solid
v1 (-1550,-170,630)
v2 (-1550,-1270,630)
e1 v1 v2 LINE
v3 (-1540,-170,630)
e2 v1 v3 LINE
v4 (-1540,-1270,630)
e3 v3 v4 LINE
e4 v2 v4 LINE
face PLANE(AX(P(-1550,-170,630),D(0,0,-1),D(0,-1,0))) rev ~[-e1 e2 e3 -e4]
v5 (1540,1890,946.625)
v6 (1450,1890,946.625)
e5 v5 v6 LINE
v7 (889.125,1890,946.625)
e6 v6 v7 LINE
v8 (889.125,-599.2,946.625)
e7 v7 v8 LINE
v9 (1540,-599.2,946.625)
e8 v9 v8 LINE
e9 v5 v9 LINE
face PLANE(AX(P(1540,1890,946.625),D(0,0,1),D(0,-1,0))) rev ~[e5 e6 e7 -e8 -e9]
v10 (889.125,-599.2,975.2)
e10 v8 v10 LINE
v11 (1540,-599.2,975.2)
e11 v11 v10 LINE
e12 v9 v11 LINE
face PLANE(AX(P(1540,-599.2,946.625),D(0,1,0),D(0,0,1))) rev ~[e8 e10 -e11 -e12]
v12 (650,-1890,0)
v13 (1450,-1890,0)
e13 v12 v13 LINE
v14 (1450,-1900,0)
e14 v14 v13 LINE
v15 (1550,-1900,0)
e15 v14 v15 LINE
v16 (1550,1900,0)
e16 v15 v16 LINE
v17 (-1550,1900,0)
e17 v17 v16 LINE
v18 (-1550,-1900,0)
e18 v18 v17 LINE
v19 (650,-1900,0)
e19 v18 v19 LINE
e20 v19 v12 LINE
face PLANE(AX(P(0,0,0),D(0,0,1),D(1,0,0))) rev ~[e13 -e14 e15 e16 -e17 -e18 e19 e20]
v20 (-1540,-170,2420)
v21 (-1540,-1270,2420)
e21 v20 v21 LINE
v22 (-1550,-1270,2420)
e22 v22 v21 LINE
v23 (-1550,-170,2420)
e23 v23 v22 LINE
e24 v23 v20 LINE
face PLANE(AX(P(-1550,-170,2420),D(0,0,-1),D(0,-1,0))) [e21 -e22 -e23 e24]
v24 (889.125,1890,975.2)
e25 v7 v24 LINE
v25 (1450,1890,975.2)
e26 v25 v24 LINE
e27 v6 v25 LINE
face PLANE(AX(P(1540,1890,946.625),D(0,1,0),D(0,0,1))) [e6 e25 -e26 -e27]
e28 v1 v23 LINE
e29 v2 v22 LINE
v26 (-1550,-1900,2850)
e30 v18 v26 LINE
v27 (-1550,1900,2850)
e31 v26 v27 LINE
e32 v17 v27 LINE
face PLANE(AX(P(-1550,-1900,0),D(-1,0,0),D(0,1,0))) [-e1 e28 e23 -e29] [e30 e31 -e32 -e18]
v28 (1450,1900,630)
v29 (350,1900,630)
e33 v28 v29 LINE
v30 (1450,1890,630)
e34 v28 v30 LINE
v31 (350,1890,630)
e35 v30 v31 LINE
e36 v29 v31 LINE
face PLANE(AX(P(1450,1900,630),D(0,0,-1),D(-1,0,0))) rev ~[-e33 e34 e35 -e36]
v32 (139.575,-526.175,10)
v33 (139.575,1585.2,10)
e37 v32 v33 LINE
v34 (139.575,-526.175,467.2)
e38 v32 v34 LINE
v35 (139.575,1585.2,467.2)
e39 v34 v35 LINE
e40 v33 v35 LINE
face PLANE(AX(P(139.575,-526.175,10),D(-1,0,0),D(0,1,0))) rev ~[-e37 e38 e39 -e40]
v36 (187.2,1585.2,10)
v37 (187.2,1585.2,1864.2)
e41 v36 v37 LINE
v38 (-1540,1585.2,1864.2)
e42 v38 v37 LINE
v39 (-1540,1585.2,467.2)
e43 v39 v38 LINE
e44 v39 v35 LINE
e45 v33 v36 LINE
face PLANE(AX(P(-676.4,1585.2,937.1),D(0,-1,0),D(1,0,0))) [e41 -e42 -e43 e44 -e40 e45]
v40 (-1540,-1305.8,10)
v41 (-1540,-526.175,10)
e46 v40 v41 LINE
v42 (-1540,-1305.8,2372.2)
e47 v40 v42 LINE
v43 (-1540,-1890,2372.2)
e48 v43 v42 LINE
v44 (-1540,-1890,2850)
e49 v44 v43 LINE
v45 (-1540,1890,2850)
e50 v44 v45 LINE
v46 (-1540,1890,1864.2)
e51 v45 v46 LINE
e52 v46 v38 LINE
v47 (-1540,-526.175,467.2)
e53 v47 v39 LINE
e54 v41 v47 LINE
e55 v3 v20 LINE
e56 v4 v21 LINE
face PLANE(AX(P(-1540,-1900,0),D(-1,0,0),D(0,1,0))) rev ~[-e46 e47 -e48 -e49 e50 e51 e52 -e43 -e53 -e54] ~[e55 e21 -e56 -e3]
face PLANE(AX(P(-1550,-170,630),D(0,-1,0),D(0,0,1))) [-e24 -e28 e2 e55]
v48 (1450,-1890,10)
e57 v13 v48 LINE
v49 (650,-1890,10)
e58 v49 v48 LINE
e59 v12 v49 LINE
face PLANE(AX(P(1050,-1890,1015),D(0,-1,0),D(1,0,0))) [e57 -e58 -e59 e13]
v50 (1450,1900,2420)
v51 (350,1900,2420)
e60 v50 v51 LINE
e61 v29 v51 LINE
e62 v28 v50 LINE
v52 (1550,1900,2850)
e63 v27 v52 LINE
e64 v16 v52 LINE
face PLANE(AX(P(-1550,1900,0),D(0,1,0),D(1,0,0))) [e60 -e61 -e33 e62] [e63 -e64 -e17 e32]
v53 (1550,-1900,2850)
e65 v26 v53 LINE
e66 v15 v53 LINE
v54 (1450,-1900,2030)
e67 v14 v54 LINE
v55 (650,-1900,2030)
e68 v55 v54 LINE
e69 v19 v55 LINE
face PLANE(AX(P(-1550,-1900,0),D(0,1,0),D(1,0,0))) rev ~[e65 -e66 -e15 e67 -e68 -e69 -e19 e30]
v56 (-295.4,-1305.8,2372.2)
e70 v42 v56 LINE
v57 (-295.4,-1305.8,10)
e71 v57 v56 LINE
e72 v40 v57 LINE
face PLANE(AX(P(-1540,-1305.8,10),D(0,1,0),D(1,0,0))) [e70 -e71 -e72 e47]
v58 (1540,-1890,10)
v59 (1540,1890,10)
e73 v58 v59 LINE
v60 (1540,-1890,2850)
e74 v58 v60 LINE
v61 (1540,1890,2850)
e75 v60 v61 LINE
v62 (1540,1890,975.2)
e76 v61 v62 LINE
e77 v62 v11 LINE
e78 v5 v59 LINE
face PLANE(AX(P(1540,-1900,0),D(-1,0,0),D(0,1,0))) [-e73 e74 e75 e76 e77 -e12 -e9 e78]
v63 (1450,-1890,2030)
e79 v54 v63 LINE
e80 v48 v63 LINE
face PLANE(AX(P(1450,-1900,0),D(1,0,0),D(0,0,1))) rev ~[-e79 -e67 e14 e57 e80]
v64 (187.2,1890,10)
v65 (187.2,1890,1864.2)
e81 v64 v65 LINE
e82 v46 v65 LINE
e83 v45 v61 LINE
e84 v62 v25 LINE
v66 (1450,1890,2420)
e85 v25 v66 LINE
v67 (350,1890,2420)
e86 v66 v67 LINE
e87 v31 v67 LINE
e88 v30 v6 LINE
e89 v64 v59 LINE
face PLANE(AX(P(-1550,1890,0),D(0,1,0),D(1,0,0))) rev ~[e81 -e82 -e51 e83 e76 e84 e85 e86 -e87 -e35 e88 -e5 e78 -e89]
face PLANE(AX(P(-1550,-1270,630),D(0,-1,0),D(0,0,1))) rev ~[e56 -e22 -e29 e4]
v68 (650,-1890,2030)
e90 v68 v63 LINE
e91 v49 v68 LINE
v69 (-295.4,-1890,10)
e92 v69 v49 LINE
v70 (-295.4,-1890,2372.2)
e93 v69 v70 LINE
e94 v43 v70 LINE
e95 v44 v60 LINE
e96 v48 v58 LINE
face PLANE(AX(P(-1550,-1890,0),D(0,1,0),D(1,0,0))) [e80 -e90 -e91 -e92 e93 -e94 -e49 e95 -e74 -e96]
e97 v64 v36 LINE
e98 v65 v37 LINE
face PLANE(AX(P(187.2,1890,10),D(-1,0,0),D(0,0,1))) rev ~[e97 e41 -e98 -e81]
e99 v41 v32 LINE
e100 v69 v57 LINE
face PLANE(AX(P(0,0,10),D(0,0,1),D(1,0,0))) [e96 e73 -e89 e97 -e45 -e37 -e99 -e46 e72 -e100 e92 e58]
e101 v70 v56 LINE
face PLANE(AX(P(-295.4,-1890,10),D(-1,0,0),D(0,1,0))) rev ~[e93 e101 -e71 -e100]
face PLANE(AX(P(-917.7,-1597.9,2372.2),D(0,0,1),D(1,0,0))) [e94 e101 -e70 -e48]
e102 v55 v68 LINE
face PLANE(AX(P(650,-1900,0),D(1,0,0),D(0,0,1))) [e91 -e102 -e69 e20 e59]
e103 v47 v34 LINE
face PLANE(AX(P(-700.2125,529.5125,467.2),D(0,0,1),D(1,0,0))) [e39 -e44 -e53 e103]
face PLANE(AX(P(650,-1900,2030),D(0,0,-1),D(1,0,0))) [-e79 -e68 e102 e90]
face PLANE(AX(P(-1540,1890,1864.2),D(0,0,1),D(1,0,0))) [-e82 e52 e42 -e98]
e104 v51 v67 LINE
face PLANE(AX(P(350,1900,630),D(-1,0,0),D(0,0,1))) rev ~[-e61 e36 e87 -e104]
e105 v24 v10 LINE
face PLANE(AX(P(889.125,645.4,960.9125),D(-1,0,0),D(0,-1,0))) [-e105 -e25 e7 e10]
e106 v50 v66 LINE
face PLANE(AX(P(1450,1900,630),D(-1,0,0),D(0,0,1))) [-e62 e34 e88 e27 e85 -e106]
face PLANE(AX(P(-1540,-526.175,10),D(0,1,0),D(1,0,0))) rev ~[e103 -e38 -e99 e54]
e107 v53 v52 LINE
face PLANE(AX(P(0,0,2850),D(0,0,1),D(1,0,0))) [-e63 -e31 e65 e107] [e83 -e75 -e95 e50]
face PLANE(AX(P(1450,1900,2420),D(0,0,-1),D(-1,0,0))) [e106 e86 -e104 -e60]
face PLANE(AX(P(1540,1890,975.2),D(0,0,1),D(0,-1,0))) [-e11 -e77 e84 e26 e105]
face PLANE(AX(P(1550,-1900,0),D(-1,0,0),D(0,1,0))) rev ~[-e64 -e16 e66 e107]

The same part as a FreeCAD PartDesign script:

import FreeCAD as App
import Part
import Sketcher
Q = App.Units.Quantity


def faces_at(feature, points):
    """Names of the faces that lie closest to the given points."""
    faces = feature.Shape.Faces
    near = lambda p: min(range(len(faces)), key=lambda i: faces[i].distToShape(Part.Vertex(*p))[0])
    return sorted({f"Face{near(p) + 1}" for p in points})

doc = App.newDocument("Part")
body = doc.addObject("PartDesign::Body", "Body")

sketch1 = body.newObject("Sketcher::SketchObject", "Sketch")
sketch1.AttachmentSupport = (doc.getObject("XY_Plane"), [""])
sketch1.MapMode = "FlatFace"
sketch1.addGeometry([
    Part.LineSegment(App.Vector(-1550, 1900, 0), App.Vector(-1550, -1900, 0)),
    Part.LineSegment(App.Vector(-1550, -1900, 0), App.Vector(1550, -1900, 0)),
    Part.LineSegment(App.Vector(1550, -1900, 0), App.Vector(1550, 1900, 0)),
    Part.LineSegment(App.Vector(1550, 1900, 0), App.Vector(-1550, 1900, 0)),
], False)
sketch1.addConstraint([
    Sketcher.Constraint("Coincident", 0, 2, 1, 1),
    Sketcher.Constraint("Coincident", 1, 2, 2, 1),
    Sketcher.Constraint("Coincident", 2, 2, 3, 1),
    Sketcher.Constraint("Coincident", 3, 2, 0, 1),
    Sketcher.Constraint("Vertical", 0),
    Sketcher.Constraint("Horizontal", 1),
    Sketcher.Constraint("Vertical", 2),
    Sketcher.Constraint("Horizontal", 3),
    Sketcher.Constraint("Symmetric", 0, 2, 2, 2, -1, 1),
    Sketcher.Constraint("DistanceX", 1, 1, 1, 2, 3100.0),
    Sketcher.Constraint("DistanceY", 0, 2, 0, 1, 3800.0),
])
pad1 = body.newObject("PartDesign::Pad", "Pad")
pad1.Profile = sketch1
pad1.Length = 2850
doc.recompute()

thickness = body.newObject("PartDesign::Thickness", "Thickness")
thickness.Base = (pad1, faces_at(pad1, [(0, 0, 2850)]))
thickness.Value = 10
thickness.Reversed = True
thickness.Join = "Arc"

sketch2 = body.newObject("Sketcher::SketchObject", "Sketch001")
sketch2.AttachmentSupport = (doc.getObject("XZ_Plane"), [""])
sketch2.MapMode = "FlatFace"
sketch2.AttachmentOffset = App.Placement(App.Vector(0, 0, 1900), App.Rotation())
sketch2.addGeometry([
    Part.LineSegment(App.Vector(650, 2030, 0), App.Vector(650, 0, 0)),
    Part.LineSegment(App.Vector(650, 0, 0), App.Vector(1450, 0, 0)),
    Part.LineSegment(App.Vector(1450, 0, 0), App.Vector(1450, 2030, 0)),
    Part.LineSegment(App.Vector(1450, 2030, 0), App.Vector(650, 2030, 0)),
], False)
sketch2.addConstraint([
    Sketcher.Constraint("Coincident", 0, 2, 1, 1),
    Sketcher.Constraint("Coincident", 1, 2, 2, 1),
    Sketcher.Constraint("Coincident", 2, 2, 3, 1),
    Sketcher.Constraint("Coincident", 3, 2, 0, 1),
    Sketcher.Constraint("Vertical", 0),
    Sketcher.Constraint("Horizontal", 1),
    Sketcher.Constraint("Vertical", 2),
    Sketcher.Constraint("Horizontal", 3),
    Sketcher.Constraint("PointOnObject", 0, 2, -1),
    Sketcher.Constraint("DistanceX", 1, 1, 1, 2, 800.0),
    Sketcher.Constraint("DistanceY", 0, 2, 0, 1, 2030.0),
    Sketcher.Constraint("DistanceX", -1, 1, 0, 2, 650.0),
])
pocket1 = body.newObject("PartDesign::Pocket", "Pocket")
pocket1.Profile = sketch2
pocket1.Length = 10

sketch3 = body.newObject("Sketcher::SketchObject", "Sketch002")
sketch3.AttachmentSupport = (doc.getObject("YZ_Plane"), [""])
sketch3.MapMode = "FlatFace"
sketch3.AttachmentOffset = App.Placement(App.Vector(0, 0, -1550), App.Rotation())
sketch3.addGeometry([
    Part.LineSegment(App.Vector(-170, 2420, 0), App.Vector(-170, 630, 0)),
    Part.LineSegment(App.Vector(-170, 630, 0), App.Vector(-1270, 630, 0)),
    Part.LineSegment(App.Vector(-1270, 630, 0), App.Vector(-1270, 2420, 0)),
    Part.LineSegment(App.Vector(-1270, 2420, 0), App.Vector(-170, 2420, 0)),
], False)
sketch3.addConstraint([
    Sketcher.Constraint("Coincident", 0, 2, 1, 1),
    Sketcher.Constraint("Coincident", 1, 2, 2, 1),
    Sketcher.Constraint("Coincident", 2, 2, 3, 1),
    Sketcher.Constraint("Coincident", 3, 2, 0, 1),
    Sketcher.Constraint("Vertical", 0),
    Sketcher.Constraint("Horizontal", 1),
    Sketcher.Constraint("Vertical", 2),
    Sketcher.Constraint("Horizontal", 3),
    Sketcher.Constraint("DistanceX", 1, 2, -1, 1, Q("50 in")),
    Sketcher.Constraint("DistanceX", 1, 2, 1, 1, 1100.0),
    Sketcher.Constraint("DistanceY", 0, 2, 0, 1, 1790.0),
    Sketcher.Constraint("DistanceY", -1, 1, 0, 2, 630.0),
])
pocket2 = body.newObject("PartDesign::Pocket", "Pocket001")
pocket2.Profile = sketch3
pocket2.Length = 10
pocket2.Reversed = True

sketch4 = body.newObject("Sketcher::SketchObject", "Sketch003")
sketch4.AttachmentSupport = (doc.getObject("XZ_Plane"), [""])
sketch4.MapMode = "FlatFace"
sketch4.AttachmentOffset = App.Placement(App.Vector(0, 0, -1900), App.Rotation())
sketch4.addGeometry([
    Part.LineSegment(App.Vector(1450, 2420, 0), App.Vector(1450, 630, 0)),
    Part.LineSegment(App.Vector(1450, 630, 0), App.Vector(350, 630, 0)),
    Part.LineSegment(App.Vector(350, 630, 0), App.Vector(350, 2420, 0)),
    Part.LineSegment(App.Vector(350, 2420, 0), App.Vector(1450, 2420, 0)),
], False)
sketch4.addConstraint([
    Sketcher.Constraint("Coincident", 0, 2, 1, 1),
    Sketcher.Constraint("Coincident", 1, 2, 2, 1),
    Sketcher.Constraint("Coincident", 2, 2, 3, 1),
    Sketcher.Constraint("Coincident", 3, 2, 0, 1),
    Sketcher.Constraint("Vertical", 0),
    Sketcher.Constraint("Horizontal", 1),
    Sketcher.Constraint("Vertical", 2),
    Sketcher.Constraint("Horizontal", 3),
    Sketcher.Constraint("DistanceX", 1, 2, 1, 1, 1100.0),
    Sketcher.Constraint("DistanceY", 0, 2, 0, 1, 1790.0),
    Sketcher.Constraint("DistanceX", -1, 1, 0, 2, 1450.0),
    Sketcher.Constraint("DistanceY", -1, 1, 0, 2, 630.0),
])
pocket3 = body.newObject("PartDesign::Pocket", "Pocket002")
pocket3.Profile = sketch4
pocket3.Length = 10
pocket3.Reversed = True

sketch5 = body.newObject("Sketcher::SketchObject", "Sketch004")
sketch5.AttachmentSupport = (doc.getObject("XY_Plane"), [""])
sketch5.MapMode = "FlatFace"
sketch5.AttachmentOffset = App.Placement(App.Vector(0, 0, 10), App.Rotation())
sketch5.addGeometry([
    Part.LineSegment(App.Vector(-1540, -1306, 0), App.Vector(-1540, -1890, 0)),
    Part.LineSegment(App.Vector(-1540, -1890, 0), App.Vector(-295, -1890, 0)),
    Part.LineSegment(App.Vector(-295, -1890, 0), App.Vector(-295, -1306, 0)),
    Part.LineSegment(App.Vector(-295, -1306, 0), App.Vector(-1540, -1306, 0)),
], False)
sketch5.addConstraint([
    Sketcher.Constraint("Coincident", 0, 2, 1, 1),
    Sketcher.Constraint("Coincident", 1, 2, 2, 1),
    Sketcher.Constraint("Coincident", 2, 2, 3, 1),
    Sketcher.Constraint("Coincident", 3, 2, 0, 1),
    Sketcher.Constraint("Vertical", 0),
    Sketcher.Constraint("Horizontal", 1),
    Sketcher.Constraint("Vertical", 2),
    Sketcher.Constraint("Horizontal", 3),
    Sketcher.Constraint("DistanceX", 1, 1, 1, 2, Q("49 in")),
    Sketcher.Constraint("DistanceY", 0, 2, 0, 1, Q("23 in")),
    Sketcher.Constraint("DistanceX", 0, 2, -1, 1, 1540.0),
    Sketcher.Constraint("DistanceY", 0, 2, -1, 1, 1890.0),
])
pad2 = body.newObject("PartDesign::Pad", "Pad001")
pad2.Profile = sketch5
pad2.Length = Q("93 in")

sketch6 = body.newObject("Sketcher::SketchObject", "Sketch005")
sketch6.AttachmentSupport = (doc.getObject("XZ_Plane"), [""])
sketch6.MapMode = "FlatFace"
sketch6.AttachmentOffset = App.Placement(App.Vector(0, 0, -1890), App.Rotation())
sketch6.addGeometry([
    Part.LineSegment(App.Vector(-1540, 1864, 0), App.Vector(-1540, 10, 0)),
    Part.LineSegment(App.Vector(-1540, 10, 0), App.Vector(187, 10, 0)),
    Part.LineSegment(App.Vector(187, 10, 0), App.Vector(187, 1864, 0)),
    Part.LineSegment(App.Vector(187, 1864, 0), App.Vector(-1540, 1864, 0)),
], False)
sketch6.addConstraint([
    Sketcher.Constraint("Coincident", 0, 2, 1, 1),
    Sketcher.Constraint("Coincident", 1, 2, 2, 1),
    Sketcher.Constraint("Coincident", 2, 2, 3, 1),
    Sketcher.Constraint("Coincident", 3, 2, 0, 1),
    Sketcher.Constraint("Vertical", 0),
    Sketcher.Constraint("Horizontal", 1),
    Sketcher.Constraint("Vertical", 2),
    Sketcher.Constraint("Horizontal", 3),
    Sketcher.Constraint("DistanceX", 1, 1, 1, 2, Q("68 in")),
    Sketcher.Constraint("DistanceY", 0, 2, 0, 1, Q("73 in")),
    Sketcher.Constraint("DistanceX", 0, 2, -1, 1, 1540.0),
    Sketcher.Constraint("DistanceY", -1, 1, 0, 2, 10.0),
])
pad3 = body.newObject("PartDesign::Pad", "Pad002")
pad3.Profile = sketch6
pad3.Length = Q("12 in")

sketch7 = body.newObject("Sketcher::SketchObject", "Sketch006")
sketch7.AttachmentSupport = (doc.getObject("YZ_Plane"), [""])
sketch7.MapMode = "FlatFace"
sketch7.AttachmentOffset = App.Placement(App.Vector(0, 0, 1540), App.Rotation())
sketch7.addGeometry([
    Part.LineSegment(App.Vector(1890, 975, 0), App.Vector(1890, 947, 0)),
    Part.LineSegment(App.Vector(1890, 947, 0), App.Vector(-599, 947, 0)),
    Part.LineSegment(App.Vector(-599, 947, 0), App.Vector(-599, 975, 0)),
    Part.LineSegment(App.Vector(-599, 975, 0), App.Vector(1890, 975, 0)),
], False)
sketch7.addConstraint([
    Sketcher.Constraint("Coincident", 0, 2, 1, 1),
    Sketcher.Constraint("Coincident", 1, 2, 2, 1),
    Sketcher.Constraint("Coincident", 2, 2, 3, 1),
    Sketcher.Constraint("Coincident", 3, 2, 0, 1),
    Sketcher.Constraint("Vertical", 0),
    Sketcher.Constraint("Horizontal", 1),
    Sketcher.Constraint("Vertical", 2),
    Sketcher.Constraint("Horizontal", 3),
    Sketcher.Constraint("DistanceX", 1, 2, 1, 1, Q("98 in")),
    Sketcher.Constraint("DistanceY", 0, 2, 0, 1, Q("1.125 in")),
    Sketcher.Constraint("DistanceX", -1, 1, 0, 2, 1890.0),
    Sketcher.Constraint("DistanceY", -1, 1, 0, 2, 946.625),
])
pad4 = body.newObject("PartDesign::Pad", "Pad003")
pad4.Profile = sketch7
pad4.Length = Q("25.625 in")
pad4.Reversed = True

sketch8 = body.newObject("Sketcher::SketchObject", "Sketch007")
sketch8.AttachmentSupport = (doc.getObject("XY_Plane"), [""])
sketch8.MapMode = "FlatFace"
sketch8.AttachmentOffset = App.Placement(App.Vector(0, 0, 10), App.Rotation())
sketch8.addGeometry([
    Part.LineSegment(App.Vector(-1540, 1585, 0), App.Vector(-1540, -526, 0)),
    Part.LineSegment(App.Vector(-1540, -526, 0), App.Vector(140, -526, 0)),
    Part.LineSegment(App.Vector(140, -526, 0), App.Vector(140, 1585, 0)),
    Part.LineSegment(App.Vector(140, 1585, 0), App.Vector(-1540, 1585, 0)),
], False)
sketch8.addConstraint([
    Sketcher.Constraint("Coincident", 0, 2, 1, 1),
    Sketcher.Constraint("Coincident", 1, 2, 2, 1),
    Sketcher.Constraint("Coincident", 2, 2, 3, 1),
    Sketcher.Constraint("Coincident", 3, 2, 0, 1),
    Sketcher.Constraint("Vertical", 0),
    Sketcher.Constraint("Horizontal", 1),
    Sketcher.Constraint("Vertical", 2),
    Sketcher.Constraint("Horizontal", 3),
    Sketcher.Constraint("DistanceX", 1, 1, 1, 2, Q("66.125 in")),
    Sketcher.Constraint("DistanceY", 0, 2, 0, 1, Q("83.125 in")),
    Sketcher.Constraint("DistanceX", 0, 2, -1, 1, 1540.0),
    Sketcher.Constraint("DistanceY", 0, 2, -1, 1, 526.175),
])
pad5 = body.newObject("PartDesign::Pad", "Pad004")
pad5.Profile = sketch8
pad5.Length = Q("18 in")

doc.recompute()
